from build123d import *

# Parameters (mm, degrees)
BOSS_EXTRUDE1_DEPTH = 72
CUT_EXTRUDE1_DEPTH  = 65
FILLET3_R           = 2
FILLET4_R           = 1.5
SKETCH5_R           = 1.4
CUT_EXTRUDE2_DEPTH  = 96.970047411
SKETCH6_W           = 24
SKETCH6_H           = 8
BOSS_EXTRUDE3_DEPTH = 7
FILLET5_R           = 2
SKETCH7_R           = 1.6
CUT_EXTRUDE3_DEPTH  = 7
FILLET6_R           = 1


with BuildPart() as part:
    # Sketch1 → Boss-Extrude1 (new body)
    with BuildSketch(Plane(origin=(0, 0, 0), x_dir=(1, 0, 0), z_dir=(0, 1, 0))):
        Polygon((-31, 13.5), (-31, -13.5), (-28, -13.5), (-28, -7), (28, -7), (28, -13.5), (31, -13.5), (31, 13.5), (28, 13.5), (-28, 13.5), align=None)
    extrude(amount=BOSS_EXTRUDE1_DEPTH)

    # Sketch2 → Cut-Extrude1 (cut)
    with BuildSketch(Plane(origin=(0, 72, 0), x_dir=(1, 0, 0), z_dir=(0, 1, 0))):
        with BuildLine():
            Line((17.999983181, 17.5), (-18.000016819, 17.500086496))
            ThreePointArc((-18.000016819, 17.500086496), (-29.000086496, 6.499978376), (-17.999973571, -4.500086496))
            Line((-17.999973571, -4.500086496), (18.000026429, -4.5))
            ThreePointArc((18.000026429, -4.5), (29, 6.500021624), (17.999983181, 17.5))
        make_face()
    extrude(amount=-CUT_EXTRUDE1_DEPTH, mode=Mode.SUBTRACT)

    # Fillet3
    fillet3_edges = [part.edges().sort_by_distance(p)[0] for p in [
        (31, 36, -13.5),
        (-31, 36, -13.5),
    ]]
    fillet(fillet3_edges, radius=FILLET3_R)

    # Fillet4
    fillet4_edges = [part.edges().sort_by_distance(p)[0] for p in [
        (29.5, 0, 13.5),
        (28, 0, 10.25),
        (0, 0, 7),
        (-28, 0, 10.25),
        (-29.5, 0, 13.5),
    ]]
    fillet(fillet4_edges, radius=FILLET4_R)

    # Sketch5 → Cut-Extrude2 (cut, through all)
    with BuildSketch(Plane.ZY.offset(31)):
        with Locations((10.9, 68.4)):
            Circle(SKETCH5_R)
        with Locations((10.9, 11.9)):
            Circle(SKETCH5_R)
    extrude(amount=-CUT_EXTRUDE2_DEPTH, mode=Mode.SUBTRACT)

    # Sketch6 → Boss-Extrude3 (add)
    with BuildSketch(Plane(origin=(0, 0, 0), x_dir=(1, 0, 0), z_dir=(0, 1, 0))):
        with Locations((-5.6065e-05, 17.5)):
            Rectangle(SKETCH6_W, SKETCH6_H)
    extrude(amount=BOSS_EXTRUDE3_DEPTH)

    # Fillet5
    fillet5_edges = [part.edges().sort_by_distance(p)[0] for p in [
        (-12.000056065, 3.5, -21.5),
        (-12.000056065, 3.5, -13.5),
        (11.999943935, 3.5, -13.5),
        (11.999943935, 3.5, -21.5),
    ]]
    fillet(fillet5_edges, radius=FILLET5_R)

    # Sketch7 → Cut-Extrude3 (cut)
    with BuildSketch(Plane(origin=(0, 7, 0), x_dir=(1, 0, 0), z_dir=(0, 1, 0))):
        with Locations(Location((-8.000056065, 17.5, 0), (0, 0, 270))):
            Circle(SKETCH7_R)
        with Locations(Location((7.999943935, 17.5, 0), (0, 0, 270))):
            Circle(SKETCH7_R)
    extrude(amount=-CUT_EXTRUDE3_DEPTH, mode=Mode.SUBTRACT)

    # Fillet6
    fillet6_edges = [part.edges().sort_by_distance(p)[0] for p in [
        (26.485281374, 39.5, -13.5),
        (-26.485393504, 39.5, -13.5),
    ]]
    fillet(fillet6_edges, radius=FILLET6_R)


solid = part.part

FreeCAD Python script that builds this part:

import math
import FreeCAD as App
import Part
import Sketcher


def edges_at(feature, points):
    """Names of the edges that pass closest to the given points."""
    edges = feature.Shape.Edges
    near = lambda p: min(range(len(edges)), key=lambda i: edges[i].distToShape(Part.Vertex(*p))[0])
    return sorted({f"Edge{near(p) + 1}" for p in points})

doc = App.newDocument("Part")
body = doc.addObject("PartDesign::Body", "Body")

# Sketch on XZ plane
sketch1 = body.newObject("Sketcher::SketchObject", "Sketch")
sketch1.AttachmentSupport = (doc.getObject("XZ_Plane"), [""])
sketch1.MapMode = "FlatFace"
sketch1.addGeometry([
    Part.LineSegment(App.Vector(-31, -13.5, 0), App.Vector(-31, 13.5, 0)),  # 0
    Part.LineSegment(App.Vector(-31, 13.5, 0), App.Vector(-28, 13.5, 0)),  # 1
    Part.LineSegment(App.Vector(-28, 13.5, 0), App.Vector(-28, 7, 0)),  # 2
    Part.LineSegment(App.Vector(-28, 7, 0), App.Vector(28, 7, 0)),  # 3
    Part.LineSegment(App.Vector(28, 7, 0), App.Vector(28, 13.5, 0)),  # 4
    Part.LineSegment(App.Vector(28, 13.5, 0), App.Vector(31, 13.5, 0)),  # 5
    Part.LineSegment(App.Vector(31, 13.5, 0), App.Vector(31, -13.5, 0)),  # 6
    Part.LineSegment(App.Vector(31, -13.5, 0), App.Vector(-31, -13.5, 0)),  # 7
], False)
sketch1.addConstraint([
    Sketcher.Constraint("Coincident", 0, 2, 1, 1),
    Sketcher.Constraint("Coincident", 1, 2, 2, 1),
    Sketcher.Constraint("Coincident", 2, 2, 3, 1),
    Sketcher.Constraint("Coincident", 3, 2, 4, 1),
    Sketcher.Constraint("Coincident", 4, 2, 5, 1),
    Sketcher.Constraint("Coincident", 5, 2, 6, 1),
    Sketcher.Constraint("Coincident", 6, 2, 7, 1),
    Sketcher.Constraint("Coincident", 7, 2, 0, 1),
    Sketcher.Constraint("Vertical", 0),
    Sketcher.Constraint("Horizontal", 1),
    Sketcher.Constraint("Vertical", 2),
    Sketcher.Constraint("Horizontal", 3),
    Sketcher.Constraint("Vertical", 4),
    Sketcher.Constraint("Horizontal", 5),
    Sketcher.Constraint("Vertical", 6),
    Sketcher.Constraint("Horizontal", 7),
    Sketcher.Constraint("Symmetric", 0, 2, 6, 2, -1, 1),
    Sketcher.Constraint("Symmetric", 1, 2, 4, 2, -2),
    Sketcher.Constraint("DistanceX", 1, 1, 1, 2, 3.0),
    Sketcher.Constraint("DistanceX", 3, 1, 3, 2, 56.0),
    Sketcher.Constraint("DistanceY", 0, 1, 0, 2, 27.0),
    Sketcher.Constraint("DistanceY", 2, 2, 2, 1, 6.5),
])
pad1 = body.newObject("PartDesign::Pad", "Pad")
pad1.Profile = sketch1
pad1.Length = 72
pad1.Reversed = True

# Sketch on XZ plane
sketch2 = body.newObject("Sketcher::SketchObject", "Sketch001")
sketch2.AttachmentSupport = (doc.getObject("XZ_Plane"), [""])
sketch2.MapMode = "FlatFace"
sketch2.AttachmentOffset = App.Placement(App.Vector(0, 0, -72), App.Rotation())
sketch2.addGeometry([
    Part.LineSegment(App.Vector(18, -18, 0), App.Vector(-18, -18, 0)),
    Part.ArcOfCircle(Part.Circle(App.Vector(-18, -6, 0), App.Vector(0, 0, 1), 11), math.radians(90), math.radians(270)),
    Part.LineSegment(App.Vector(-18, 5, 0), App.Vector(18, 4, 0)),
    Part.ArcOfCircle(Part.Circle(App.Vector(18, -6, 0), App.Vector(0, 0, 1), 11), math.radians(-90), math.radians(90)),
], False)
sketch2.addConstraint([
    Sketcher.Constraint("Coincident", 0, 2, 1, 2),
    Sketcher.Constraint("Tangent", 1, 1, 2, 1),
    Sketcher.Constraint("Tangent", 2, 2, 3, 2),
    Sketcher.Constraint("Coincident", 3, 1, 0, 1),
    Sketcher.Constraint("Symmetric", 1, 3, 3, 3, -2),
    Sketcher.Constraint("Equal", 0, 2),
    Sketcher.Constraint("Radius", 3, 11.0),
    Sketcher.Constraint("Distance", 0, 36.0),
    Sketcher.Constraint("DistanceY", 1, 3, -1, 1, 6.5),
    Sketcher.Constraint("Radius", 1, 11.000086),
    Sketcher.Constraint("DistanceX", 0, 2, -1, 1, 18.000017),
])
pocket1 = body.newObject("PartDesign::Pocket", "Pocket")
pocket1.Profile = sketch2
pocket1.Length = 65
pocket1.Reversed = True
doc.recompute()

fillet = body.newObject("PartDesign::Fillet", "Fillet")
fillet.Base = (pocket1, edges_at(pocket1, [(31, 36, -13.5), (-31, 36, -13.5)]))
fillet.Radius = 2
doc.recompute()

fillet2 = body.newObject("PartDesign::Fillet", "Fillet001")
fillet2.Base = (fillet, edges_at(fillet, [
    (29.5, 0, 13.5),
    (28, 0, 10.25),
    (0, 0, 7),
    (-28, 0, 10.25),
    (-29.5, 0, 13.5),
]))
fillet2.Radius = 1.5

# Sketch on YZ plane
sketch3 = body.newObject("Sketcher::SketchObject", "Sketch002")
sketch3.AttachmentSupport = (doc.getObject("YZ_Plane"), [""])
sketch3.MapMode = "FlatFace"
sketch3.AttachmentOffset = App.Placement(App.Vector(0, 0, -31), App.Rotation())
sketch3.addGeometry([
    Part.Circle(App.Vector(68.4, 10.9, 0), App.Vector(0, 0, 1), 1.4),
    Part.Circle(App.Vector(11.9, 10.9, 0), App.Vector(0, 0, 1), 1.4),
], False)
sketch3.addConstraint([
    Sketcher.Constraint("Equal", 0, 1),
    Sketcher.Constraint("Horizontal", 0, 3, 1, 3),
    Sketcher.Constraint("Diameter", 0, 2.8),
    Sketcher.Constraint("DistanceX", -1, 1, 0, 3, 68.4),
    Sketcher.Constraint("DistanceY", -1, 1, 0, 3, 10.9),
    Sketcher.Constraint("DistanceX", -1, 1, 1, 3, 11.9),
])
pocket2 = body.newObject("PartDesign::Pocket", "Pocket001")
pocket2.Profile = sketch3
pocket2.Type = "ThroughAll"
pocket2.Reversed = True

# Sketch on XZ plane
sketch4 = body.newObject("Sketcher::SketchObject", "Sketch003")
sketch4.AttachmentSupport = (doc.getObject("XZ_Plane"), [""])
sketch4.MapMode = "FlatFace"
sketch4.addGeometry([
    Part.LineSegment(App.Vector(-12, -22, 0), App.Vector(-12, -14, 0)),
    Part.LineSegment(App.Vector(-12, -14, 0), App.Vector(12, -14, 0)),
    Part.LineSegment(App.Vector(12, -14, 0), App.Vector(12, -22, 0)),
    Part.LineSegment(App.Vector(12, -22, 0), App.Vector(-12, -22, 0)),
], False)
sketch4.addConstraint([
    Sketcher.Constraint("Coincident", 0, 2, 1, 1),
    Sketcher.Constraint("Coincident", 1, 2, 2, 1),
    Sketcher.Constraint("Coincident", 2, 2, 3, 1),
    Sketcher.Constraint("Coincident", 3, 2, 0, 1),
    Sketcher.Constraint("Vertical", 0),
    Sketcher.Constraint("Horizontal", 1),
    Sketcher.Constraint("Vertical", 2),
    Sketcher.Constraint("Horizontal", 3),
    Sketcher.Constraint("DistanceX", 1, 1, 1, 2, 24.0),
    Sketcher.Constraint("DistanceY", 0, 1, 0, 2, 8.0),
    Sketcher.Constraint("DistanceY", 0, 2, -1, 1, 13.5),
    Sketcher.Constraint("DistanceX", 0, 2, -1, 1, 12.000056),
])
pad2 = body.newObject("PartDesign::Pad", "Pad001")
pad2.Profile = sketch4
pad2.Length = 7
pad2.Reversed = True
doc.recompute()

fillet3 = body.newObject("PartDesign::Fillet", "Fillet002")
fillet3.Base = (pad2, edges_at(pad2, [
    (-12, 3.5, -21.5),
    (-12, 3.5, -13.5),
    (12, 3.5, -13.5),
    (12, 3.5, -21.5),
]))
fillet3.Radius = 2

# Sketch on XZ plane
sketch5 = body.newObject("Sketcher::SketchObject", "Sketch004")
sketch5.AttachmentSupport = (doc.getObject("XZ_Plane"), [""])
sketch5.MapMode = "FlatFace"
sketch5.AttachmentOffset = App.Placement(App.Vector(0, 0, -7), App.Rotation())
sketch5.addGeometry([
    Part.Circle(App.Vector(-8, -17.5, 0), App.Vector(0, 0, 1), 1.6),
    Part.Circle(App.Vector(8, -17.5, 0), App.Vector(0, 0, 1), 1.6),
], False)
sketch5.addConstraint([
    Sketcher.Constraint("Equal", 0, 1),
    Sketcher.Constraint("Horizontal", 0, 3, 1, 3),
    Sketcher.Constraint("Diameter", 0, 3.2),
    Sketcher.Constraint("DistanceX", 0, 3, 1, 3, 16.0),
    Sketcher.Constraint("DistanceY", 0, 3, -1, 1, 17.5),
    Sketcher.Constraint("DistanceX", 0, 3, -1, 1, 8.000056),
])
pocket3 = body.newObject("PartDesign::Pocket", "Pocket002")
pocket3.Profile = sketch5
pocket3.Length = 7
pocket3.Reversed = True
doc.recompute()

fillet4 = body.newObject("PartDesign::Fillet", "Fillet003")
fillet4.Base = (pocket3, edges_at(pocket3, [(26.485, 39.5, -13.5), (-26.485, 39.5, -13.5)]))
fillet4.Radius = 1

doc.recompute()
